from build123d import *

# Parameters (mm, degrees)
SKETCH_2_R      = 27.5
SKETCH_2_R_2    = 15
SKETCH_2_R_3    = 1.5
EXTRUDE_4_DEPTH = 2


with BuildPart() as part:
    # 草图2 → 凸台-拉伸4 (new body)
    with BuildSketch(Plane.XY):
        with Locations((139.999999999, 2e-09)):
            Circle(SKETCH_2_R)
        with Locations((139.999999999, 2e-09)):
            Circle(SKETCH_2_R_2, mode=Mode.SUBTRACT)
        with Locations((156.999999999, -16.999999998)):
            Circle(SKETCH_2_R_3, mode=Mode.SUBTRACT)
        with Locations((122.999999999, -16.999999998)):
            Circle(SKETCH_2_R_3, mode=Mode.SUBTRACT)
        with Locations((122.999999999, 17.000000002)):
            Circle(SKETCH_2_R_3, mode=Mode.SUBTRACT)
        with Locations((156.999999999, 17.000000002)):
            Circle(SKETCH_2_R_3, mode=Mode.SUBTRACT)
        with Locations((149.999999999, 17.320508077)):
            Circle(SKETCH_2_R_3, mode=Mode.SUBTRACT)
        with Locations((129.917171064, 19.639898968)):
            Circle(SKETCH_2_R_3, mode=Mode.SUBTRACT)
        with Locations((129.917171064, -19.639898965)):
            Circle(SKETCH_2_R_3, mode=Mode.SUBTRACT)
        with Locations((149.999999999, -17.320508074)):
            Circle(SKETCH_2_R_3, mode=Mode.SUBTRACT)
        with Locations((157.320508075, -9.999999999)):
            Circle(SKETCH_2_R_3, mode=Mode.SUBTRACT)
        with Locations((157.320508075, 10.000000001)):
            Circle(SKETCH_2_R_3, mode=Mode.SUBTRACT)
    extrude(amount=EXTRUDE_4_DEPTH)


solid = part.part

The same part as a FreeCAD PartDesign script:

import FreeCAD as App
import Part
import Sketcher
from FreeCAD import Vector
Q = App.Units.Quantity

doc = App.newDocument("Part")
body = doc.addObject("PartDesign::Body", "Body")

sketch1 = doc.addObject("Sketcher::SketchObject", "Sketch")
body.addObject(sketch1)
sketch1.AttachmentSupport = (doc.XY_Plane, [""])
sketch1.MapMode = "FlatFace"
sketch1.addGeometry([
    Part.Circle(Vector(140, 0, 0), Vector(0, 0, 1), 27.5),
    Part.Circle(Vector(123, -17, 0), Vector(0, 0, 1), 1.5),
    Part.Circle(Vector(129.9, -19.6, 0), Vector(0, 0, 1), 1.5),
    Part.Circle(Vector(150, -17.3, 0), Vector(0, 0, 1), 1.5),
    Part.Circle(Vector(157, -17, 0), Vector(0, 0, 1), 1.5),
    Part.Circle(Vector(157.3, -10, 0), Vector(0, 0, 1), 1.5),
    Part.Circle(Vector(140, 0, 0), Vector(0, 0, 1), 15),
    Part.Circle(Vector(123, 17, 0), Vector(0, 0, 1), 1.5),
    Part.Circle(Vector(129.9, 19.6, 0), Vector(0, 0, 1), 1.5),
    Part.Circle(Vector(157.3, 10, 0), Vector(0, 0, 1), 1.5),
    Part.Circle(Vector(150, 17.3, 0), Vector(0, 0, 1), 1.5),
    Part.Circle(Vector(157, 17, 0), Vector(0, 0, 1), 1.5),
], False)
sketch1.addConstraint([
    Sketcher.Constraint("Coincident", 6, 3, 0, 3),
    Sketcher.Constraint("Equal", 1, 2),
    Sketcher.Constraint("Equal", 2, 3),
    Sketcher.Constraint("Equal", 3, 4),
    Sketcher.Constraint("Equal", 4, 5),
    Sketcher.Constraint("Equal", 5, 7),
    Sketcher.Constraint("Equal", 7, 8),
    Sketcher.Constraint("Equal", 8, 9),
    Sketcher.Constraint("Equal", 9, 10),
    Sketcher.Constraint("Equal", 10, 11),
    Sketcher.Constraint("Symmetric", 1, 3, 7, 3, -1),
    Sketcher.Constraint("Symmetric", 2, 3, 8, 3, -1),
    Sketcher.Constraint("Symmetric", 5, 3, 9, 3, -1),
    Sketcher.Constraint("Symmetric", 3, 3, 10, 3, -1),
    Sketcher.Constraint("Symmetric", 4, 3, 11, 3, -1),
    Sketcher.Constraint("PointOnObject", 0, 3, -1),
    Sketcher.Constraint("Horizontal", 1, 3, 4, 3),
    Sketcher.Constraint("Diameter", 0, Q("55 mm")),
    Sketcher.Constraint("Diameter", 1, Q("3 mm")),
    Sketcher.Constraint("Diameter", 6, Q("30 mm")),
    Sketcher.Constraint("DistanceX", -1, 1, 0, 3, Q("140 mm")),
    Sketcher.Constraint("DistanceX", -1, 1, 1, 3, Q("123 mm")),
    Sketcher.Constraint("DistanceY", 1, 3, -1, 1, Q("17 mm")),
    Sketcher.Constraint("DistanceX", -1, 1, 3, 3, Q("150 mm")),
    Sketcher.Constraint("DistanceX", -1, 1, 4, 3, Q("157 mm")),
    Sketcher.Constraint("DistanceY", 5, 3, -1, 1, Q("10 mm")),
    Sketcher.Constraint("DistanceY", 2, 3, -1, 1, Q("19.639899 mm")),
    Sketcher.Constraint("DistanceX", -1, 1, 2, 3, Q("129.917171 mm")),
    Sketcher.Constraint("DistanceY", 3, 3, -1, 1, Q("17.320508 mm")),
    Sketcher.Constraint("DistanceX", -1, 1, 5, 3, Q("157.320508 mm")),
])
pad1 = doc.addObject("PartDesign::Pad", "Pad")
body.addObject(pad1)
pad1.Profile = sketch1
pad1.Length = 2

doc.recompute()
